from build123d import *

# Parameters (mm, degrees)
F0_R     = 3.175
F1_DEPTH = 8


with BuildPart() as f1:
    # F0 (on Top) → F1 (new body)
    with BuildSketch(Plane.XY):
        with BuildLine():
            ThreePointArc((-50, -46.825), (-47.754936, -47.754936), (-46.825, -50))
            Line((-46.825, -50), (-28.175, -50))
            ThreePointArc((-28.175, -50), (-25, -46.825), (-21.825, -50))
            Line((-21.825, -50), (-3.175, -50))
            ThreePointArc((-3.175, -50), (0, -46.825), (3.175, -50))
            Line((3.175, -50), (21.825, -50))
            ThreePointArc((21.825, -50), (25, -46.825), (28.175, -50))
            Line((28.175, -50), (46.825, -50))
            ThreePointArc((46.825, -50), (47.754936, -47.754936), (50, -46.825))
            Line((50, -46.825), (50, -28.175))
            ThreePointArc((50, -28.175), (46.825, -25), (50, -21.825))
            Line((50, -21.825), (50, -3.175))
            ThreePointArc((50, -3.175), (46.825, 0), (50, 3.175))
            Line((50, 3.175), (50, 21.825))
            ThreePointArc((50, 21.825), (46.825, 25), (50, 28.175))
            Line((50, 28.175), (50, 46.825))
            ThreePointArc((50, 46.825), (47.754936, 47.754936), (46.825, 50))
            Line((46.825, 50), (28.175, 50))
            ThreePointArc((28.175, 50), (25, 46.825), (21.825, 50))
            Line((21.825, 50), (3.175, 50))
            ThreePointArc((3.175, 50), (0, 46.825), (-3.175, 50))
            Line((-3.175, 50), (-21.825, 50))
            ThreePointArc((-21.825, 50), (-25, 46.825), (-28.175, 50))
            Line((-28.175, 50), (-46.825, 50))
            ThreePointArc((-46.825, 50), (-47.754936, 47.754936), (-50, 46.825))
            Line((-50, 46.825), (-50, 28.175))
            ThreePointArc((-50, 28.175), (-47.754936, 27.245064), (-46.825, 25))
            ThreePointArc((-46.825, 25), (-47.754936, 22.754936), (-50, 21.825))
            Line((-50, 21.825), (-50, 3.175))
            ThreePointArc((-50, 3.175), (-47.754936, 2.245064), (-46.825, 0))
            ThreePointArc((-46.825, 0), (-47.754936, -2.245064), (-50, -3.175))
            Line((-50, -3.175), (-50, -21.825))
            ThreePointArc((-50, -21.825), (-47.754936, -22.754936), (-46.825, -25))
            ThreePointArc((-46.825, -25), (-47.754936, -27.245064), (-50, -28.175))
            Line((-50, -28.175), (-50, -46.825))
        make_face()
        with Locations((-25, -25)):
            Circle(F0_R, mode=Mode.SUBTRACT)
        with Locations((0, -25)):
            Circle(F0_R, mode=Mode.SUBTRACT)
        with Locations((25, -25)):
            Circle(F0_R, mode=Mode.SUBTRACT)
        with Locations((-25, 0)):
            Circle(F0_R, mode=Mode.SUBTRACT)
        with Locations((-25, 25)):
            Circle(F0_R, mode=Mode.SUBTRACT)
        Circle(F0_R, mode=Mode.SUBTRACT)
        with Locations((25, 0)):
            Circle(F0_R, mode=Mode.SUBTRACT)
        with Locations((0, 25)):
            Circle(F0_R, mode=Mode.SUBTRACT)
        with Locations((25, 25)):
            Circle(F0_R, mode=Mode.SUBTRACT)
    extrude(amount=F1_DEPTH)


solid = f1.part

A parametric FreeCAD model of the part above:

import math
import FreeCAD as App
import Part
import Sketcher
Q = App.Units.Quantity

doc = App.newDocument("Part")
params = doc.addObject("Spreadsheet::Sheet", "Params")
for row, (alias, value) in enumerate([
    ("sketch1_diameter", "6.35 mm"),
    ("pad1_length", "8 mm"),
], start=1):
    params.set(f"A{row}", alias)
    params.set(f"B{row}", "=" + value)
    params.setAlias(f"B{row}", alias)

body = doc.addObject("PartDesign::Body", "Body")

# Sketch on XY plane
sketch1 = body.newObject("Sketcher::SketchObject", "Sketch")
sketch1.AttachmentSupport = (doc.getObject("XY_Plane"), [""])
sketch1.MapMode = "FlatFace"
sketch1.addGeometry([
    Part.ArcOfCircle(Part.Circle(App.Vector(-50, -50, 0), App.Vector(0, 0, 1), 3.175), math.radians(0.000002), math.radians(89.999998)),  # 0
    Part.LineSegment(App.Vector(-46.825, -50, 0), App.Vector(-28.175, -50, 0)),  # 1
    Part.ArcOfCircle(Part.Circle(App.Vector(-25, -50, 0), App.Vector(0, 0, 1), 3.175), math.radians(0), math.radians(180)),  # 2
    Part.LineSegment(App.Vector(-21.825, -50, 0), App.Vector(-3.175, -50, 0)),  # 3
    Part.ArcOfCircle(Part.Circle(App.Vector(0, -50, 0), App.Vector(0, 0, 1), 3.175), math.radians(0), math.radians(180)),  # 4
    Part.LineSegment(App.Vector(3.175, -50, 0), App.Vector(21.825, -50, 0)),  # 5
    Part.ArcOfCircle(Part.Circle(App.Vector(25, -50, 0), App.Vector(0, 0, 1), 3.175), math.radians(0), math.radians(180)),  # 6
    Part.LineSegment(App.Vector(28.175, -50, 0), App.Vector(46.825, -50, 0)),  # 7
    Part.ArcOfCircle(Part.Circle(App.Vector(50, -50, 0), App.Vector(0, 0, 1), 3.175), math.radians(90.000002), math.radians(179.999998)),  # 8
    Part.LineSegment(App.Vector(50, -46.825, 0), App.Vector(50, -28.175, 0)),  # 9
    Part.ArcOfCircle(Part.Circle(App.Vector(50, -25, 0), App.Vector(0, 0, 1), 3.175), math.radians(90), math.radians(270)),  # 10
    Part.LineSegment(App.Vector(50, -21.825, 0), App.Vector(50, -3.175, 0)),  # 11
    Part.ArcOfCircle(Part.Circle(App.Vector(50, 0, 0), App.Vector(0, 0, 1), 3.175), math.radians(90), math.radians(270)),  # 12
    Part.LineSegment(App.Vector(50, 3.175, 0), App.Vector(50, 21.825, 0)),  # 13
    Part.ArcOfCircle(Part.Circle(App.Vector(50, 25, 0), App.Vector(0, 0, 1), 3.175), math.radians(90), math.radians(270)),  # 14
    Part.LineSegment(App.Vector(50, 28.175, 0), App.Vector(50, 46.825, 0)),  # 15
    Part.ArcOfCircle(Part.Circle(App.Vector(50, 50, 0), App.Vector(0, 0, 1), 3.175), math.radians(-179.999998), math.radians(-90.000002)),  # 16
    Part.LineSegment(App.Vector(46.825, 50, 0), App.Vector(28.175, 50, 0)),  # 17
    Part.ArcOfCircle(Part.Circle(App.Vector(25, 50, 0), App.Vector(0, 0, 1), 3.175), math.radians(180), math.radians(360)),  # 18
    Part.LineSegment(App.Vector(21.825, 50, 0), App.Vector(3.175, 50, 0)),  # 19
    Part.ArcOfCircle(Part.Circle(App.Vector(0, 50, 0), App.Vector(0, 0, 1), 3.175), math.radians(180), math.radians(360)),  # 20
    Part.LineSegment(App.Vector(-3.175, 50, 0), App.Vector(-21.825, 50, 0)),  # 21
    Part.ArcOfCircle(Part.Circle(App.Vector(-25, 50, 0), App.Vector(0, 0, 1), 3.175), math.radians(180), math.radians(360)),  # 22
    Part.LineSegment(App.Vector(-28.175, 50, 0), App.Vector(-46.825, 50, 0)),  # 23
    Part.ArcOfCircle(Part.Circle(App.Vector(-50, 50, 0), App.Vector(0, 0, 1), 3.175), math.radians(-89.999998), math.radians(-0.000002)),  # 24
    Part.LineSegment(App.Vector(-50, 46.825, 0), App.Vector(-50, 28.175, 0)),  # 25
    Part.ArcOfCircle(Part.Circle(App.Vector(-50, 25, 0), App.Vector(0, 0, 1), 3.175), math.radians(0.000002), math.radians(89.999998)),  # 26
    Part.ArcOfCircle(Part.Circle(App.Vector(-50, 25, 0), App.Vector(0, 0, 1), 3.175), math.radians(-89.999998), math.radians(-0.000002)),  # 27
    Part.LineSegment(App.Vector(-50, 21.825, 0), App.Vector(-50, 3.175, 0)),  # 28
    Part.ArcOfCircle(Part.Circle(App.Vector(-50, 0, 0), App.Vector(0, 0, 1), 3.175), math.radians(0.000002), math.radians(89.999998)),  # 29
    Part.ArcOfCircle(Part.Circle(App.Vector(-50, 0, 0), App.Vector(0, 0, 1), 3.175), math.radians(-89.999998), math.radians(-0.000002)),  # 30
    Part.LineSegment(App.Vector(-50, -3.175, 0), App.Vector(-50, -21.825, 0)),  # 31
    Part.ArcOfCircle(Part.Circle(App.Vector(-50, -25, 0), App.Vector(0, 0, 1), 3.175), math.radians(0.000002), math.radians(89.999998)),  # 32
    Part.ArcOfCircle(Part.Circle(App.Vector(-50, -25, 0), App.Vector(0, 0, 1), 3.175), math.radians(-89.999998), math.radians(-0.000002)),  # 33
    Part.LineSegment(App.Vector(-50, -28.175, 0), App.Vector(-50, -46.825, 0)),  # 34
    Part.Circle(App.Vector(-25, -25, 0), App.Vector(0, 0, 1), 3.175),  # 35
    Part.Circle(App.Vector(0, -25, 0), App.Vector(0, 0, 1), 3.175),  # 36
    Part.Circle(App.Vector(25, -25, 0), App.Vector(0, 0, 1), 3.175),  # 37
    Part.Circle(App.Vector(-25, 0, 0), App.Vector(0, 0, 1), 3.175),  # 38
    Part.Circle(App.Vector(-25, 25, 0), App.Vector(0, 0, 1), 3.175),  # 39
    Part.Circle(App.Vector(0, 0, 0), App.Vector(0, 0, 1), 3.175),  # 40
    Part.Circle(App.Vector(25, 0, 0), App.Vector(0, 0, 1), 3.175),  # 41
    Part.Circle(App.Vector(0, 25, 0), App.Vector(0, 0, 1), 3.175),  # 42
    Part.Circle(App.Vector(25, 25, 0), App.Vector(0, 0, 1), 3.175),  # 43
], False)
sketch1.addConstraint([
    Sketcher.Constraint("Coincident", 0, 1, 1, 1),
    Sketcher.Constraint("Coincident", 1, 2, 2, 2),
    Sketcher.Constraint("Coincident", 2, 1, 3, 1),
    Sketcher.Constraint("Coincident", 3, 2, 4, 2),
    Sketcher.Constraint("Coincident", 4, 1, 5, 1),
    Sketcher.Constraint("Coincident", 5, 2, 6, 2),
    Sketcher.Constraint("Coincident", 6, 1, 7, 1),
    Sketcher.Constraint("Coincident", 7, 2, 8, 2),
    Sketcher.Constraint("Coincident", 8, 1, 9, 1),
    Sketcher.Constraint("Coincident", 9, 2, 10, 2),
    Sketcher.Constraint("Coincident", 10, 1, 11, 1),
    Sketcher.Constraint("Coincident", 11, 2, 12, 2),
    Sketcher.Constraint("Coincident", 12, 1, 13, 1),
    Sketcher.Constraint("Coincident", 13, 2, 14, 2),
    Sketcher.Constraint("Coincident", 14, 1, 15, 1),
    Sketcher.Constraint("Coincident", 15, 2, 16, 2),
    Sketcher.Constraint("Coincident", 16, 1, 17, 1),
    Sketcher.Constraint("Coincident", 17, 2, 18, 2),
    Sketcher.Constraint("Coincident", 18, 1, 19, 1),
    Sketcher.Constraint("Coincident", 19, 2, 20, 2),
    Sketcher.Constraint("Coincident", 20, 1, 21, 1),
    Sketcher.Constraint("Coincident", 21, 2, 22, 2),
    Sketcher.Constraint("Coincident", 22, 1, 23, 1),
    Sketcher.Constraint("Coincident", 23, 2, 24, 2),
    Sketcher.Constraint("Coincident", 24, 1, 25, 1),
    Sketcher.Constraint("Coincident", 25, 2, 26, 2),
    Sketcher.Constraint("Tangent", 26, 1, 27, 2),
    Sketcher.Constraint("Coincident", 27, 1, 28, 1),
    Sketcher.Constraint("Coincident", 28, 2, 29, 2),
    Sketcher.Constraint("Tangent", 29, 1, 30, 2),
    Sketcher.Constraint("Coincident", 30, 1, 31, 1),
    Sketcher.Constraint("Coincident", 31, 2, 32, 2),
    Sketcher.Constraint("Tangent", 32, 1, 33, 2),
    Sketcher.Constraint("Coincident", 33, 1, 34, 1),
    Sketcher.Constraint("Coincident", 34, 2, 0, 2),
    Sketcher.Constraint("Horizontal", 1),
    Sketcher.Constraint("Horizontal", 3),
    Sketcher.Constraint("Horizontal", 5),
    Sketcher.Constraint("Horizontal", 7),
    Sketcher.Constraint("Vertical", 9),
    Sketcher.Constraint("Vertical", 11),
    Sketcher.Constraint("Vertical", 13),
    Sketcher.Constraint("Vertical", 15),
    Sketcher.Constraint("Horizontal", 17),
    Sketcher.Constraint("Horizontal", 19),
    Sketcher.Constraint("Horizontal", 21),
    Sketcher.Constraint("Horizontal", 23),
    Sketcher.Constraint("Vertical", 25),
    Sketcher.Constraint("Vertical", 28),
    Sketcher.Constraint("Vertical", 31),
    Sketcher.Constraint("Vertical", 34),
    Sketcher.Constraint("Coincident", 40, 3, -1, 1),
    Sketcher.Constraint("Equal", 0, 2),
    Sketcher.Constraint("Equal", 2, 4),
    Sketcher.Constraint("Equal", 4, 6),
    Sketcher.Constraint("Equal", 6, 8),
    Sketcher.Constraint("Equal", 8, 10),
    Sketcher.Constraint("Equal", 10, 12),
    Sketcher.Constraint("Equal", 12, 14),
    Sketcher.Constraint("Equal", 14, 16),
    Sketcher.Constraint("Equal", 16, 18),
    Sketcher.Constraint("Equal", 18, 20),
    Sketcher.Constraint("Equal", 20, 22),
    Sketcher.Constraint("Equal", 22, 24),
    Sketcher.Constraint("Equal", 24, 26),
    Sketcher.Constraint("Equal", 26, 27),
    Sketcher.Constraint("Equal", 27, 29),
    Sketcher.Constraint("Equal", 29, 30),
    Sketcher.Constraint("Equal", 30, 32),
    Sketcher.Constraint("Equal", 32, 33),
    Sketcher.Constraint("Equal", 33, 35),
    Sketcher.Constraint("Equal", 35, 36),
    Sketcher.Constraint("Equal", 36, 37),
    Sketcher.Constraint("Equal", 37, 38),
    Sketcher.Constraint("Equal", 38, 39),
    Sketcher.Constraint("Equal", 39, 40),
    Sketcher.Constraint("Equal", 40, 41),
    Sketcher.Constraint("Equal", 41, 42),
    Sketcher.Constraint("Equal", 42, 43),
    Sketcher.Constraint("Symmetric", 0, 3, 16, 3, -1, 1),
    Sketcher.Constraint("Symmetric", 2, 3, 18, 3, -1, 1),
    Sketcher.Constraint("Symmetric", 4, 3, 20, 3, -1, 1),
    Sketcher.Constraint("Symmetric", 6, 3, 22, 3, -1, 1),
    Sketcher.Constraint("Symmetric", 8, 3, 24, 3, -1, 1),
    Sketcher.Constraint("Symmetric", 10, 3, 26, 3, -1, 1),
    Sketcher.Constraint("Symmetric", 12, 3, 29, 3, -1, 1),
    Sketcher.Constraint("Symmetric", 14, 3, 32, 3, -1, 1),
    Sketcher.Constraint("Symmetric", 37, 3, 39, 3, -1, 1),
    Sketcher.Constraint("Symmetric", 38, 3, 41, 3, -1, 1),
    Sketcher.Constraint("Symmetric", 36, 3, 42, 3, -1, 1),
    Sketcher.Constraint("Symmetric", 35, 3, 43, 3, -1, 1),
    Sketcher.Constraint("Symmetric", 2, 3, 6, 3, -2),
    Sketcher.Constraint("Symmetric", 0, 3, 8, 3, -2),
    Sketcher.Constraint("Symmetric", 14, 3, 26, 3, -2),
    Sketcher.Constraint("Symmetric", 35, 3, 37, 3, -2),
    Sketcher.Constraint("Symmetric", 3, 2, 4, 1, -2),
    Sketcher.Constraint("Symmetric", 12, 1, 28, 2, -2),
    Sketcher.Constraint("PointOnObject", 36, 3, -2),
    Sketcher.Constraint("PointOnObject", 38, 3, -1),
    Sketcher.Constraint("PointOnObject", 29, 1, -1),
    Sketcher.Constraint("Horizontal", 0, 3, 2, 3),
    Sketcher.Constraint("Horizontal", 2, 3, 4, 3),
    Sketcher.Constraint("Horizontal", 33, 3, 35, 3),
    Sketcher.Constraint("Horizontal", 35, 3, 36, 3),
    Sketcher.Constraint("Horizontal", 8, 3, 0, 1),
    Sketcher.Constraint("Horizontal", 1, 2, 2, 1),
    Sketcher.Constraint("Horizontal", 5, 2, 6, 1),
    Sketcher.Constraint("Horizontal", 24, 3, 16, 1),
    Sketcher.Constraint("Horizontal", 17, 2, 18, 1),
    Sketcher.Constraint("Horizontal", 19, 2, 20, 1),
    Sketcher.Constraint("Horizontal", 21, 2, 22, 1),
    Sketcher.Constraint("Horizontal", 43, 3, 26, 1),
    Sketcher.Constraint("Horizontal", 37, 3, 32, 1),
    Sketcher.Constraint("Vertical", 8, 3, 10, 3),
    Sketcher.Constraint("Vertical", 10, 3, 12, 3),
    Sketcher.Constraint("Vertical", 22, 3, 35, 3),
    Sketcher.Constraint("Vertical", 35, 3, 38, 3),
    Sketcher.Constraint("Vertical", 16, 3, 8, 1),
    Sketcher.Constraint("Vertical", 9, 2, 10, 1),
    Sketcher.Constraint("Vertical", 11, 2, 12, 1),
    Sketcher.Constraint("Vertical", 13, 2, 14, 1),
    Sketcher.Constraint("Vertical", 33, 3, 24, 1),
    Sketcher.Constraint("Vertical", 28, 2, 30, 1),
    Sketcher.Constraint("Vertical", 31, 2, 33, 1),
    Sketcher.Constraint("Equal", 1, 3),
    Sketcher.Constraint("Equal", 23, 9),
    Sketcher.Constraint("Equal", 9, 11),
    Sketcher.Constraint("Diameter", 35, Q("6.35 mm")),
    Sketcher.Constraint("DistanceX", 0, 3, -1, 1, Q("50 mm")),
])
sketch1.setExpression("Constraints[127]", "Params.sketch1_diameter")
pad1 = body.newObject("PartDesign::Pad", "Pad")
pad1.Profile = sketch1
pad1.setExpression("Length", "Params.pad1_length")

doc.recompute()
